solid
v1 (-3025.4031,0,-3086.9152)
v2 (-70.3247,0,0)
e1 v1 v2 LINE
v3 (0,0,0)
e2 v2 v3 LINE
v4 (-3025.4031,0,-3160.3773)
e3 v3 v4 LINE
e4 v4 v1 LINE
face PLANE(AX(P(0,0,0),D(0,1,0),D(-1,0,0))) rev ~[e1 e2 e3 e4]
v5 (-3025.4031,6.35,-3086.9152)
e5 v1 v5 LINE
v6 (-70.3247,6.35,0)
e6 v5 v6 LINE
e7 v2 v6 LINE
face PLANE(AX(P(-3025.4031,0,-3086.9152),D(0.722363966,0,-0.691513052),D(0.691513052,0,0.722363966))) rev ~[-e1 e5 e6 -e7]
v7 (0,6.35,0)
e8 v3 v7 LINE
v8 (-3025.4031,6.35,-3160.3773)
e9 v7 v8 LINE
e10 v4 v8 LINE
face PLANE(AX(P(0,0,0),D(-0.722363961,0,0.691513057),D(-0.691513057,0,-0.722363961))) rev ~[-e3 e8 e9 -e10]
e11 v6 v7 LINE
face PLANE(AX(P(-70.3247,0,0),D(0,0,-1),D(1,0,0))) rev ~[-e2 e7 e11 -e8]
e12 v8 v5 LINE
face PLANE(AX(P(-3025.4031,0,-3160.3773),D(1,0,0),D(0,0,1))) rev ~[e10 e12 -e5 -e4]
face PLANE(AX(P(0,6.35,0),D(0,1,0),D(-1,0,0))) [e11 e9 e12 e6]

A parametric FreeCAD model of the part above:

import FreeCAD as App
import Part
import Sketcher
Q = App.Units.Quantity


def add_polygon(sketch, points):
    """Adds a closed chain of lines whose ends are joined by coincident constraints."""
    first, n = sketch.GeometryCount, len(points)
    for a, b in zip(points, points[1:] + points[:1]):
        sketch.addGeometry(Part.LineSegment(App.Vector(*a, 0), App.Vector(*b, 0)), False)
    for i in range(n):
        sketch.addConstraint(Sketcher.Constraint("Coincident", first + i, 2, first + (i + 1) % n, 1))

doc = App.newDocument("Part")
params = doc.addObject("Spreadsheet::Sheet", "Params")
for row, (alias, value) in enumerate([
    ("sketch1_length", "172.246 in"),
    ("pad1_length", "0.25 in"),
], start=1):
    params.set(f"A{row}", alias)
    params.set(f"B{row}", "=" + value)
    params.setAlias(f"B{row}", alias)

body = doc.addObject("PartDesign::Body", "Body")

# Sketch on XZ plane
sketch1 = body.newObject("Sketcher::SketchObject", "Sketch")
sketch1.AttachmentSupport = (doc.getObject("XZ_Plane"), [""])
sketch1.MapMode = "FlatFace"
add_polygon(sketch1, [(-70, 0), (0, 0), (-3025, -3160), (-3025, -3087)])  # lines 0-3
sketch1.addConstraint(Sketcher.Constraint("Horizontal", 0))
sketch1.addConstraint(Sketcher.Constraint("Vertical", 2))
sketch1.addConstraint(Sketcher.Constraint("Coincident", 0, 2, -1, 1))
sketch1.addConstraint(Sketcher.Constraint("Parallel", 1, 3))
sketch1.addConstraint(Sketcher.Constraint("Distance", 1, Q("172.246 in")))
sketch1.addConstraint(Sketcher.Constraint("Angle", 1, Q("-133.75 deg")))
sketch1.addConstraint(Sketcher.Constraint("DistanceX", 0, 1, 0, 2, Q("2.7687 in")))
sketch1.setExpression("Constraints[8]", "Params.sketch1_length")
pad1 = body.newObject("PartDesign::Pad", "Pad")
pad1.Profile = sketch1
pad1.setExpression("Length", "Params.pad1_length")
pad1.Reversed = True

doc.recompute()
